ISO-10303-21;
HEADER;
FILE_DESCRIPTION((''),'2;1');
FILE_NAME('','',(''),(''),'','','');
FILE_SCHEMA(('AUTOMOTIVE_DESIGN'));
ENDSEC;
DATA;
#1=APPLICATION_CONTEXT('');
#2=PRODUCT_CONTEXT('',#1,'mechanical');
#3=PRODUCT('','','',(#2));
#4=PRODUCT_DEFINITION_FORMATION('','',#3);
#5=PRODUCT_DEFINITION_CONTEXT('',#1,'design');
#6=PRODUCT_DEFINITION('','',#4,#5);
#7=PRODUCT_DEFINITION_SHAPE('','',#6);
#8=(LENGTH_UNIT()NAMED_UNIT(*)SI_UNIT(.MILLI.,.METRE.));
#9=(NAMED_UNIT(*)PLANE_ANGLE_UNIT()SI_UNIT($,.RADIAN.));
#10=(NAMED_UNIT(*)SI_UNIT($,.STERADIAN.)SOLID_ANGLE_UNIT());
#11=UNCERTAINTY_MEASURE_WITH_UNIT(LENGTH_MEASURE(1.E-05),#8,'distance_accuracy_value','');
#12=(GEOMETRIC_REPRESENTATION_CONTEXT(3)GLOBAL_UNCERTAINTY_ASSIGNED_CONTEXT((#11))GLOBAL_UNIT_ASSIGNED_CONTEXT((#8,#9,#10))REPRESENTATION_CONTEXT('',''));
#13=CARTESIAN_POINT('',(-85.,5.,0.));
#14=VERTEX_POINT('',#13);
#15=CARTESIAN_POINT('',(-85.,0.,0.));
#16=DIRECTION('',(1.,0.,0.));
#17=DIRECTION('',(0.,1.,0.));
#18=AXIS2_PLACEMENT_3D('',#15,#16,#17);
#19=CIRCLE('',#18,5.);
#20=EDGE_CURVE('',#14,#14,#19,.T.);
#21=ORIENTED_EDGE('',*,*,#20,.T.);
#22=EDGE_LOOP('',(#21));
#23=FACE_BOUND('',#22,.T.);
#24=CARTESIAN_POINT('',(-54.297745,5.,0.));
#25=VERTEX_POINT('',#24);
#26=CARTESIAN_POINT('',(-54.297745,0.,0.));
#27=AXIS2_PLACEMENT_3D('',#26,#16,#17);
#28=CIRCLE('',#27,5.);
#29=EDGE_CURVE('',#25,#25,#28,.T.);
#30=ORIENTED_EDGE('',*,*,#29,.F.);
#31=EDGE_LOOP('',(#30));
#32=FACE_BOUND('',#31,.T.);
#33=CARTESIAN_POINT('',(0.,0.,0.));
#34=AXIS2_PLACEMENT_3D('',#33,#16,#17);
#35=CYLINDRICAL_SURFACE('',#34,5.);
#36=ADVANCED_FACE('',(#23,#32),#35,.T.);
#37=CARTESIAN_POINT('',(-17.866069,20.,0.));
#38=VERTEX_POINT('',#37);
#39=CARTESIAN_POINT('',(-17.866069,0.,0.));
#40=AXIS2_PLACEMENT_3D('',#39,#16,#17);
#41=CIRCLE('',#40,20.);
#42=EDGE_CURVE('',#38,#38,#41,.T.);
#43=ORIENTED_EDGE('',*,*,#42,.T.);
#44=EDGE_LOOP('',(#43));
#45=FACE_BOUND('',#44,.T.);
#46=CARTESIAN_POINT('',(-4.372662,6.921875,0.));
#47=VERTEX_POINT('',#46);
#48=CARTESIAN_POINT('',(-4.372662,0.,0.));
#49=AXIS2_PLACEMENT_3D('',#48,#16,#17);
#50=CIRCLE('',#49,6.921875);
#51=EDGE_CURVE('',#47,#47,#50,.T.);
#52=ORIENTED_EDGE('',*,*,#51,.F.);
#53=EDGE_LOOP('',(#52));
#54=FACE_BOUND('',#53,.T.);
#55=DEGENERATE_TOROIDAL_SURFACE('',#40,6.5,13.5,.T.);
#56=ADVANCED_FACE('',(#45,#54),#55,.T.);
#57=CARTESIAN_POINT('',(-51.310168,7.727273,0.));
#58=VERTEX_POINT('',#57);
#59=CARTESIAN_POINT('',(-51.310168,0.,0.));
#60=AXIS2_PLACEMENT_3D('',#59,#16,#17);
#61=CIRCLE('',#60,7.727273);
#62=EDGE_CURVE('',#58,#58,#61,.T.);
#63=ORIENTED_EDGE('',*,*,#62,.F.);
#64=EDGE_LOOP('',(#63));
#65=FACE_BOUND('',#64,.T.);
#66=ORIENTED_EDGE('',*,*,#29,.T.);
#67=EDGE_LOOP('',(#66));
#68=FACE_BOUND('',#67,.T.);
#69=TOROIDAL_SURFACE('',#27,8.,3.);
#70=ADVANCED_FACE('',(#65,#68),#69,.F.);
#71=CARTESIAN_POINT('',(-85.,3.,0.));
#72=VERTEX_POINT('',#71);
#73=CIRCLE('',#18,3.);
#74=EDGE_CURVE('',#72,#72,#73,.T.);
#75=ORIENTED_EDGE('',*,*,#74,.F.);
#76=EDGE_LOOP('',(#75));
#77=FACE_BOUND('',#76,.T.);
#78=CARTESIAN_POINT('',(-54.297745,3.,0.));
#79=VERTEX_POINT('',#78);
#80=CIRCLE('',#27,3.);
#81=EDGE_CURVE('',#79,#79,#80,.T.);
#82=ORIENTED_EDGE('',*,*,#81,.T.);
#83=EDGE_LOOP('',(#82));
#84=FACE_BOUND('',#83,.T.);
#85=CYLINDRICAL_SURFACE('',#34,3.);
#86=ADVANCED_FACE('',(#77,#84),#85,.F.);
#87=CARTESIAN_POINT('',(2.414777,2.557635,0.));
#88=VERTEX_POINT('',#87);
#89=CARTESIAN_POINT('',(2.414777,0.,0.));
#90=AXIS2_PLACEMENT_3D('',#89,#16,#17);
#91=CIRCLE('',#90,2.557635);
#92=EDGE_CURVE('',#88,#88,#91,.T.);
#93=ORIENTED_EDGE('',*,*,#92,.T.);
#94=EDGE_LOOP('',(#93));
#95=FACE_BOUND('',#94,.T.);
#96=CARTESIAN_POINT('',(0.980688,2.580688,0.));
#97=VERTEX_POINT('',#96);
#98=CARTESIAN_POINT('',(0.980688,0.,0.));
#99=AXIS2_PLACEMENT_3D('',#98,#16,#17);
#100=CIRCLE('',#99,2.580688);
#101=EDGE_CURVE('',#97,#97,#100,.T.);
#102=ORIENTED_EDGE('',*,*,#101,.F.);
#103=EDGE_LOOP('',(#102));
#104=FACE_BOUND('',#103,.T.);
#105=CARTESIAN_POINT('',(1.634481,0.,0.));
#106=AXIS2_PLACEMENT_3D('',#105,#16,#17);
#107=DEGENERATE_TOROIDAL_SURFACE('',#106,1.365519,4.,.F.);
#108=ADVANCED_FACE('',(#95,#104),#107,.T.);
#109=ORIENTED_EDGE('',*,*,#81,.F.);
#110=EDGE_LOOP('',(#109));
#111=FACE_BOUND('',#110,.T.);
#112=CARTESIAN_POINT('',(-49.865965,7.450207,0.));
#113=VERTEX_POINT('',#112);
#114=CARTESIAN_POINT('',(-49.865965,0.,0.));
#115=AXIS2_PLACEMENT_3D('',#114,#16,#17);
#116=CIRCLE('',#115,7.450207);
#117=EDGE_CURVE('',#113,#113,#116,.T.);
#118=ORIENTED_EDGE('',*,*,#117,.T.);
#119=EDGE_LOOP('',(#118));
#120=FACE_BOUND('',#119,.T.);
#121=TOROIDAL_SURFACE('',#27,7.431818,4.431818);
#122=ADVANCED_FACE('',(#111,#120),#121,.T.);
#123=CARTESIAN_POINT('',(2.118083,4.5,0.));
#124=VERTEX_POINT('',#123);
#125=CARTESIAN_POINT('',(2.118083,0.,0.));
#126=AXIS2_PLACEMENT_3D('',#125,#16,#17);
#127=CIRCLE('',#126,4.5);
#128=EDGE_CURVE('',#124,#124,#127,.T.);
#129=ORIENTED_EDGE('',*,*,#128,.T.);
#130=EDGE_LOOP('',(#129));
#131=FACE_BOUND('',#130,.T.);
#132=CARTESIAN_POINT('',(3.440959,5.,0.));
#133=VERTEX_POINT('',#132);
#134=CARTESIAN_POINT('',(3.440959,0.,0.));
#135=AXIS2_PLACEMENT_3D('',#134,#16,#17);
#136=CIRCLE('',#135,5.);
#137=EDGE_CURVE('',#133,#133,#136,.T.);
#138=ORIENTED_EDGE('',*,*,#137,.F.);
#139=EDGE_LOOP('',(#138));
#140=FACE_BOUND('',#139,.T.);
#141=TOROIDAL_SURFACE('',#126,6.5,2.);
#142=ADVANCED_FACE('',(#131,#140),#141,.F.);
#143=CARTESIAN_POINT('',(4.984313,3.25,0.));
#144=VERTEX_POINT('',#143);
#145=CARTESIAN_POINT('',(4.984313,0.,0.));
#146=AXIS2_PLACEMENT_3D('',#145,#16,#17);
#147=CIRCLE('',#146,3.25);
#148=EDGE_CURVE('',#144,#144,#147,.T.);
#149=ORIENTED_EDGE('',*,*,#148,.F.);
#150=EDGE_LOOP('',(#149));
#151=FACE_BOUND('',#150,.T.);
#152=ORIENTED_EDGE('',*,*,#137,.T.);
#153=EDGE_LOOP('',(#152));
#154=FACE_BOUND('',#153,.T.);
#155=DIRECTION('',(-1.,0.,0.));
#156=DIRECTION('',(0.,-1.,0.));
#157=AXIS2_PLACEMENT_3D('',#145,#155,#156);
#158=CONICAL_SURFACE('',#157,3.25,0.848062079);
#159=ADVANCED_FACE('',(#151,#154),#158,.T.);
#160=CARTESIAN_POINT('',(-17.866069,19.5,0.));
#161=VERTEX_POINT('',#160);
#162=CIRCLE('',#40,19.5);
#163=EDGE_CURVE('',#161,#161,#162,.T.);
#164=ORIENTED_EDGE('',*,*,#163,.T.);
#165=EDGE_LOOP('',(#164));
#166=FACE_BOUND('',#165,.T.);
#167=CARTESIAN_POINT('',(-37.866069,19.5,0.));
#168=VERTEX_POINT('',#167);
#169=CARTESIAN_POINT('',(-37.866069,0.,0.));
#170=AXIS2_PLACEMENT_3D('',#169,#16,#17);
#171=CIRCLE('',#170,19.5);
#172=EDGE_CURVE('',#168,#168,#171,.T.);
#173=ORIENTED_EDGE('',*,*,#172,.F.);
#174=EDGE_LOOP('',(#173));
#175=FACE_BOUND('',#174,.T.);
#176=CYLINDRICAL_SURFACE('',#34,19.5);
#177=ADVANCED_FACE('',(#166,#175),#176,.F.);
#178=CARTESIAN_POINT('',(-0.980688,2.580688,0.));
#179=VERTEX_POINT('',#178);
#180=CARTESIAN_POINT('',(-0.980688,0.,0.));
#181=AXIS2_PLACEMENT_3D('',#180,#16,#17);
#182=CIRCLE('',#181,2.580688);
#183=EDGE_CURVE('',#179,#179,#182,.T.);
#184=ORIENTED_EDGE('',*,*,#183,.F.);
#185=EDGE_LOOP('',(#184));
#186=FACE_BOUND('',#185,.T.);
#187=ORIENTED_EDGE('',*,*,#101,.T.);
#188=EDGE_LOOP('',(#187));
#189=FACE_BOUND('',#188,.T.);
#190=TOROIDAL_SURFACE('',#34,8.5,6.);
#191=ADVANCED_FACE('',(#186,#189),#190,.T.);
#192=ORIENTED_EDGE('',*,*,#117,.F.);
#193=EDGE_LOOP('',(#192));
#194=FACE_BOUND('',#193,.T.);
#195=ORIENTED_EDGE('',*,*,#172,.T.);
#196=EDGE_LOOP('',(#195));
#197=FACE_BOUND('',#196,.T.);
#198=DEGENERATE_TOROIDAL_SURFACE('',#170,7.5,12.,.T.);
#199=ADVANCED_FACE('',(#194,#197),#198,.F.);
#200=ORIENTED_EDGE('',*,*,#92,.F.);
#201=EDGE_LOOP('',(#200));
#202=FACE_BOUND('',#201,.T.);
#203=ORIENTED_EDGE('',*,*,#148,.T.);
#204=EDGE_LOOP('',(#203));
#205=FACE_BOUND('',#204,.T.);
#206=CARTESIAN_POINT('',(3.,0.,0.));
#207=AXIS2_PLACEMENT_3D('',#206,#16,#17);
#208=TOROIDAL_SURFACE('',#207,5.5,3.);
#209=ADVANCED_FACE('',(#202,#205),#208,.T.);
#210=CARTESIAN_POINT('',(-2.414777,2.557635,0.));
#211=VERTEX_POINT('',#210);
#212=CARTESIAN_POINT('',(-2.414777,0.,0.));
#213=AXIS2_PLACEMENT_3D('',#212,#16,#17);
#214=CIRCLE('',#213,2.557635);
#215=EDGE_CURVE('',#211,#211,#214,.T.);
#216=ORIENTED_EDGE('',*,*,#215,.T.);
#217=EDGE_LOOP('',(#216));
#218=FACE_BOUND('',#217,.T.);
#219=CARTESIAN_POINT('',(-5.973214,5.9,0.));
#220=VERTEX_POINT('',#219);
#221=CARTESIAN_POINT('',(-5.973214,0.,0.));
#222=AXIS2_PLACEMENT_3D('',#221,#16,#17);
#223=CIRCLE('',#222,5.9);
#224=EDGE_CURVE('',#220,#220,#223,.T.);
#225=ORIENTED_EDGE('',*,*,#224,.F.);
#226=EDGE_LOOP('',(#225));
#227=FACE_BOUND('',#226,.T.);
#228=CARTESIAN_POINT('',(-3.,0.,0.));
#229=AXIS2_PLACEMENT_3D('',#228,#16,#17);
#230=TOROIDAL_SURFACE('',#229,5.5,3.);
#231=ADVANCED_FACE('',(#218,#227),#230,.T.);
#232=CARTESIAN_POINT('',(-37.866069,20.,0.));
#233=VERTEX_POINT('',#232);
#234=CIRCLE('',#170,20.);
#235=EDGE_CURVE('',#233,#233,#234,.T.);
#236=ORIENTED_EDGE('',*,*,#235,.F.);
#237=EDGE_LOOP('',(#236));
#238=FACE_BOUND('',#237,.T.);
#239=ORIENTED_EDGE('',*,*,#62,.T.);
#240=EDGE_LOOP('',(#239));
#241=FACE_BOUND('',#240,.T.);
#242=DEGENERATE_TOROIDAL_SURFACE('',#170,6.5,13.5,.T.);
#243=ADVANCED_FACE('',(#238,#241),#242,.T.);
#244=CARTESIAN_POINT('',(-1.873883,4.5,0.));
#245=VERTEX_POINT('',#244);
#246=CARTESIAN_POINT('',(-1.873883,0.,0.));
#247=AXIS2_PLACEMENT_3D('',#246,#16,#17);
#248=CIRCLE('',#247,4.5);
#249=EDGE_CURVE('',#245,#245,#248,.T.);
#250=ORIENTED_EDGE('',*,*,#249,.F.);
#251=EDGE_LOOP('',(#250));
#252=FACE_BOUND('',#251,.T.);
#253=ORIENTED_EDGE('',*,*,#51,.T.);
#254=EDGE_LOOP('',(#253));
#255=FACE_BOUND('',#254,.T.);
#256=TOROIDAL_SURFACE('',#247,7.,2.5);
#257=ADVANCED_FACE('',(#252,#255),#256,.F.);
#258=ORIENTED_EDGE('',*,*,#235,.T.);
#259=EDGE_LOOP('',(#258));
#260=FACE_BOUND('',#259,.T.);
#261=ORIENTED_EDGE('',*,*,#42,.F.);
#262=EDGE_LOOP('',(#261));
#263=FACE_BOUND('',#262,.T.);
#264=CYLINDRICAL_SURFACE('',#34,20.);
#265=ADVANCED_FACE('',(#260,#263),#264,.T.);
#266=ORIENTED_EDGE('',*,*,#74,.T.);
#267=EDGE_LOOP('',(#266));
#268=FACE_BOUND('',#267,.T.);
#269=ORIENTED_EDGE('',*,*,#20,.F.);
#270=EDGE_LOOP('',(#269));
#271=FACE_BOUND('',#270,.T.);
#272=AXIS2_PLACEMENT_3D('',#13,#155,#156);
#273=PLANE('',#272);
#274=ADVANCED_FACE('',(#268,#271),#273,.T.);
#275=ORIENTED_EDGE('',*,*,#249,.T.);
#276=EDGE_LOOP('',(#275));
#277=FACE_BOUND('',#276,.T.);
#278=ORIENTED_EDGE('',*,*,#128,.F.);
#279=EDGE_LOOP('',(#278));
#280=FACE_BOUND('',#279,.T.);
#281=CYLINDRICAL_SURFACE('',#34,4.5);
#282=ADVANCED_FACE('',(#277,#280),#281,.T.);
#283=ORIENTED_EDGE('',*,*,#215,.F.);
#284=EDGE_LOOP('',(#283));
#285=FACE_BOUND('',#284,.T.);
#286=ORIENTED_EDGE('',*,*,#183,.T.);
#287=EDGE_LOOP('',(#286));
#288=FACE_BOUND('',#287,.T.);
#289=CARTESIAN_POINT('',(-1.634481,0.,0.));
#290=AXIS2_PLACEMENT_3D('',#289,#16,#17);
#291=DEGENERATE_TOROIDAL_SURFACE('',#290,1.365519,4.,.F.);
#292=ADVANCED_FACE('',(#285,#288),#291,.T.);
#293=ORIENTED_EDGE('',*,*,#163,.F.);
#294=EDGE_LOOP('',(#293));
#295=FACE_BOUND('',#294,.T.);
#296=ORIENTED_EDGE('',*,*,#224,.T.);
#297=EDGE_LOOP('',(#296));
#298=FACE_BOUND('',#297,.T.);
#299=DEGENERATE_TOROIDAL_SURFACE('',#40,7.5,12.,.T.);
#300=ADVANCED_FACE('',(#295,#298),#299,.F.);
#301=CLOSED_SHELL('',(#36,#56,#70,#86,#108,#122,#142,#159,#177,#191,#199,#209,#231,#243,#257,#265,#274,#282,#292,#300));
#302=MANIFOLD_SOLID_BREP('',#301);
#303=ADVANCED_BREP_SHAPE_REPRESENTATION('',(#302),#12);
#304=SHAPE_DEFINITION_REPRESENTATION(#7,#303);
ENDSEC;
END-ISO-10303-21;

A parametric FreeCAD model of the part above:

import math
import FreeCAD as App
import Part
import Sketcher

V = App.Vector

doc = App.newDocument("Part")
params = doc.addObject("Spreadsheet::Sheet", "Params")
for row, (alias, value) in enumerate([
    ("sketch1_radius", "12 mm"),
    ("sketch1_radius2", "3 mm"),
    ("sketch1_radius3", "4 mm"),
    ("sketch1_radius4", "6 mm"),
    ("sketch1_radius5", "2 mm"),
    ("revolution_angle", "360 deg"),
], start=1):
    params.set(f"A{row}", alias)
    params.set(f"B{row}", "=" + value)
    params.setAlias(f"B{row}", alias)

body = doc.addObject("PartDesign::Body", "Body")

sketch1 = doc.addObject("Sketcher::SketchObject", "Sketch")
body.addObject(sketch1)
sketch1.AttachmentSupport = (doc.XY_Plane, [""])
sketch1.MapMode = "FlatFace"
sketch1.addGeometry([
    Part.LineSegment(V(-37.9, 19.5, 0), V(-17.9, 19.5, 0)),
    Part.ArcOfCircle(Part.Circle(V(-17.9, 7.5, 0), V(0, 0, 1), 12), math.radians(-8), math.radians(90)),
    Part.ArcOfCircle(Part.Circle(V(-3, 5.5, 0), V(0, 0, 1), 3), math.radians(172), math.radians(281)),
    Part.ArcOfCircle(Part.Circle(V(-1.6, -1.4, 0), V(0, 0, 1), 4), math.radians(81), math.radians(101)),
    Part.ArcOfCircle(Part.Circle(V(0, 8.5, 0), V(0, 0, 1), 6), math.radians(-99.41), math.radians(-80.59)),
    Part.ArcOfCircle(Part.Circle(V(1.6, -1.4, 0), V(0, 0, 1), 4), math.radians(79), math.radians(99)),
    Part.ArcOfCircle(Part.Circle(V(3, 5.5, 0), V(0, 0, 1), 3), math.radians(-101), math.radians(-49)),
    Part.LineSegment(V(5, 3.2, 0), V(3.4, 5, 0)),
    Part.ArcOfCircle(Part.Circle(V(2.1, 6.5, 0), V(0, 0, 1), 2), math.radians(-90), math.radians(-49)),
    Part.LineSegment(V(2.1, 4.5, 0), V(-1.9, 4.5, 0)),
    Part.ArcOfCircle(Part.Circle(V(-1.9, 7, 0), V(0, 0, 1), 2.5), math.radians(-178), math.radians(-90)),
    Part.ArcOfCircle(Part.Circle(V(-17.9, 6.5, 0), V(0, 0, 1), 13.5), math.radians(2), math.radians(90)),
    Part.LineSegment(V(-17.9, 20, 0), V(-37.9, 20, 0)),
    Part.ArcOfCircle(Part.Circle(V(-37.9, 6.5, 0), V(0, 0, 1), 13.5), math.radians(90), math.radians(175)),
    Part.ArcOfCircle(Part.Circle(V(-54.3, 8, 0), V(0, 0, 1), 3), math.radians(-90), math.radians(-5)),
    Part.LineSegment(V(-54.3, 5, 0), V(-85, 5, 0)),
    Part.LineSegment(V(-85, 5, 0), V(-85, 3, 0)),
    Part.LineSegment(V(-85, 3, 0), V(-54.3, 3, 0)),
    Part.ArcOfCircle(Part.Circle(V(-54.3, 7.4, 0), V(0, 0, 1), 4.4), math.radians(-90), math.radians(0)),
    Part.ArcOfCircle(Part.Circle(V(-37.9, 7.5, 0), V(0, 0, 1), 12), math.radians(90), math.radians(180)),
], False)
sketch1.addConstraint([
    Sketcher.Constraint("Tangent", 0, 2, 1, 2),
    Sketcher.Constraint("Tangent", 1, 1, 2, 1),
    Sketcher.Constraint("Tangent", 2, 2, 3, 2),
    Sketcher.Constraint("Tangent", 3, 1, 4, 1),
    Sketcher.Constraint("Tangent", 4, 2, 5, 2),
    Sketcher.Constraint("Tangent", 5, 1, 6, 1),
    Sketcher.Constraint("Coincident", 6, 2, 7, 1),
    Sketcher.Constraint("Coincident", 7, 2, 8, 2),
    Sketcher.Constraint("Tangent", 8, 1, 9, 1),
    Sketcher.Constraint("Tangent", 9, 2, 10, 2),
    Sketcher.Constraint("Tangent", 10, 1, 11, 1),
    Sketcher.Constraint("Tangent", 11, 2, 12, 1),
    Sketcher.Constraint("Tangent", 12, 2, 13, 1),
    Sketcher.Constraint("Tangent", 13, 2, 14, 2),
    Sketcher.Constraint("Tangent", 14, 1, 15, 1),
    Sketcher.Constraint("Coincident", 15, 2, 16, 1),
    Sketcher.Constraint("Coincident", 16, 2, 17, 1),
    Sketcher.Constraint("Tangent", 17, 2, 18, 1),
    Sketcher.Constraint("Tangent", 18, 2, 19, 2),
    Sketcher.Constraint("Tangent", 19, 1, 0, 1),
    Sketcher.Constraint("Horizontal", 0),
    Sketcher.Constraint("Horizontal", 9),
    Sketcher.Constraint("Horizontal", 12),
    Sketcher.Constraint("Horizontal", 15),
    Sketcher.Constraint("Vertical", 16),
    Sketcher.Constraint("Horizontal", 17),
    Sketcher.Constraint("Equal", 3, 5),
    Sketcher.Constraint("Equal", 2, 6),
    Sketcher.Constraint("Equal", 11, 13),
    Sketcher.Constraint("Equal", 6, 14),
    Sketcher.Constraint("Equal", 1, 19),
    Sketcher.Constraint("Symmetric", 3, 3, 5, 3, -2),
    Sketcher.Constraint("Horizontal", 2, 3, 6, 3),
    Sketcher.Constraint("Horizontal", 8, 3, 11, 3),
    Sketcher.Constraint("Horizontal", 7, 2, 14, 1),
    Sketcher.Constraint("Vertical", 1, 3, 11, 3),
    Sketcher.Constraint("Vertical", 14, 3, 18, 3),
    Sketcher.Constraint("Vertical", 13, 3, 19, 3),
    Sketcher.Constraint("Radius", 1, 12.0),
    Sketcher.Constraint("Radius", 2, 3.0),
    Sketcher.Constraint("Radius", 3, 4.0),
    Sketcher.Constraint("Radius", 4, 6.0),
    Sketcher.Constraint("Radius", 8, 2.0),
    Sketcher.Constraint("Radius", 10, 2.5),
    Sketcher.Constraint("Radius", 11, 13.5),
    Sketcher.Constraint("DistanceX", 0, 1, 0, 2, 20.0),
    Sketcher.Constraint("DistanceY", 16, 2, 16, 1, 2.0),
    Sketcher.Constraint("DistanceX", 2, 3, -1, 1, 3.0),
    Sketcher.Constraint("DistanceY", -1, 1, 10, 3, 7.0),
    Sketcher.Constraint("DistanceY", -1, 1, 14, 3, 8.0),
    Sketcher.Constraint("DistanceX", 15, 2, -1, 1, 85.0),
    Sketcher.Constraint("DistanceY", 2, 3, 1, 3, 2.0),
    Sketcher.Constraint("DistanceY", 2, 3, 4, 3, 3.0),
    Sketcher.Constraint("DistanceY", 6, 3, 8, 3, 1.0),
    Sketcher.Constraint("DistanceY", -1, 1, 6, 2, 3.25),
    Sketcher.Constraint("DistanceX", 9, 2, 9, 1, 3.991966),
])
sketch1.setExpression("Constraints[38]", "Params.sketch1_radius")
sketch1.setExpression("Constraints[39]", "Params.sketch1_radius2")
sketch1.setExpression("Constraints[40]", "Params.sketch1_radius3")
sketch1.setExpression("Constraints[41]", "Params.sketch1_radius4")
sketch1.setExpression("Constraints[42]", "Params.sketch1_radius5")
revolution = doc.addObject("PartDesign::Revolution", "Revolution")
body.addObject(revolution)
revolution.Profile = sketch1
revolution.ReferenceAxis = (sketch1, ["H_Axis"])
revolution.setExpression("Angle", "Params.revolution_angle")

doc.recompute()
